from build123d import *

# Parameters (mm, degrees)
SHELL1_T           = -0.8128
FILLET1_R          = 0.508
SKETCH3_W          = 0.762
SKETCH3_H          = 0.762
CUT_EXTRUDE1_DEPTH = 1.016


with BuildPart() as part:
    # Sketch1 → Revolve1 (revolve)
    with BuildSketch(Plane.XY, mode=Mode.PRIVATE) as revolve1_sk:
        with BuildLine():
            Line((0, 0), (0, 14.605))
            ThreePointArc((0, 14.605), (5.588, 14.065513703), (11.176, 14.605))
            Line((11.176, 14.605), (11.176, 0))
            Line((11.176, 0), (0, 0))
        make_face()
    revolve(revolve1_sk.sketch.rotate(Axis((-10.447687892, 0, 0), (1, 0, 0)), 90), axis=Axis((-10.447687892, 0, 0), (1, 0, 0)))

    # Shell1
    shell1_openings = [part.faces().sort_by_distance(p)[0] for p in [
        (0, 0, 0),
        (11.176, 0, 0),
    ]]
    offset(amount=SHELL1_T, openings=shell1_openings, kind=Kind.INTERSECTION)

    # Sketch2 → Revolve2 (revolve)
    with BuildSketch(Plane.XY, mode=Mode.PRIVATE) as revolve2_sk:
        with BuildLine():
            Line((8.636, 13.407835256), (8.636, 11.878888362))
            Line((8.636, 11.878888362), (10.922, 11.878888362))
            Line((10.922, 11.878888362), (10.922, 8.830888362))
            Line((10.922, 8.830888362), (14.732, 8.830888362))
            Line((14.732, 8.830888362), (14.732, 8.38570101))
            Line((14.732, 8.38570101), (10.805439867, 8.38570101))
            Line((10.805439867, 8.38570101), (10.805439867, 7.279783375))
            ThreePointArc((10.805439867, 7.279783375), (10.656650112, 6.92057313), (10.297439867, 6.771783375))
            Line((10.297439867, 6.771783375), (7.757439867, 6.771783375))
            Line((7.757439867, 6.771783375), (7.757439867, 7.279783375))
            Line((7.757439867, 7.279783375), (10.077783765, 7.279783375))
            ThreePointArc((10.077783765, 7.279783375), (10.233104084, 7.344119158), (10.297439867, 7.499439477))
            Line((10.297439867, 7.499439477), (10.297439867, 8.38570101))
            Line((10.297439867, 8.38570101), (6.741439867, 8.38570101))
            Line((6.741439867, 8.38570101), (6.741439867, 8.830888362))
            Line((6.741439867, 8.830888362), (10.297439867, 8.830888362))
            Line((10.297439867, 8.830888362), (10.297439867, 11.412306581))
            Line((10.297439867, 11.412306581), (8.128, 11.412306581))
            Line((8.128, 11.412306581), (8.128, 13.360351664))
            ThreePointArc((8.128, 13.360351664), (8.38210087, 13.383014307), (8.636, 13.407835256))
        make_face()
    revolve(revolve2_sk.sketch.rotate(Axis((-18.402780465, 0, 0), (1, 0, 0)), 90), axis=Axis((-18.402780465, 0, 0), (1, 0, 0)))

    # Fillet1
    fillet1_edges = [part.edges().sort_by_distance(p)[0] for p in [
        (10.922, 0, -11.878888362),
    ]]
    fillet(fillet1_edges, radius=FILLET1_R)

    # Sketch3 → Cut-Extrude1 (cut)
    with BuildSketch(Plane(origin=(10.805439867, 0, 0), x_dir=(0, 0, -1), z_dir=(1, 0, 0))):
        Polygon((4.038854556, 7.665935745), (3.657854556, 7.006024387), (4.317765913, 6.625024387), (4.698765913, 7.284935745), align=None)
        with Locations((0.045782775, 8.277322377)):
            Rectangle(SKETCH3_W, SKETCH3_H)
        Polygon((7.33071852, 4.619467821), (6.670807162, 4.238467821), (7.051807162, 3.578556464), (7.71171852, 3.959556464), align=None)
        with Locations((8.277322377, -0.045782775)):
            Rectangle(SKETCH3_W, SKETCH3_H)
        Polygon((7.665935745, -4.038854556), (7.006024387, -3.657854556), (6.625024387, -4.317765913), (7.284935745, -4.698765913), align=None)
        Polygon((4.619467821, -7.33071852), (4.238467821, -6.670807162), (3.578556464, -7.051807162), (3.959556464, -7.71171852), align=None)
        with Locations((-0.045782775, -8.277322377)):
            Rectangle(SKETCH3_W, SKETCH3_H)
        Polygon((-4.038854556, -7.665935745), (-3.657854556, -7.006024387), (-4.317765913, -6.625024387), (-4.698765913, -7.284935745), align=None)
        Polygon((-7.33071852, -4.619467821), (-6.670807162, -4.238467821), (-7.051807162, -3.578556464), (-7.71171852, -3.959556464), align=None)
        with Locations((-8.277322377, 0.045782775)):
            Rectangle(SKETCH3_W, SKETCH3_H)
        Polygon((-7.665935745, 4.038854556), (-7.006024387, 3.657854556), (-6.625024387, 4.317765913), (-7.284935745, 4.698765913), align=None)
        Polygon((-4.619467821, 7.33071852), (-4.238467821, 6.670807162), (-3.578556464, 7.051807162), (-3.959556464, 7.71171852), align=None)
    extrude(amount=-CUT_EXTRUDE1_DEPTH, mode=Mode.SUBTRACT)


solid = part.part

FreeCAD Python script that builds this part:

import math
import FreeCAD as App
import Part
import Sketcher

V = App.Vector
Q = App.Units.Quantity


def edges_at(feature, points):
    """Names of the edges that pass closest to the given points."""
    edges = feature.Shape.Edges
    near = lambda p: min(range(len(edges)), key=lambda i: edges[i].distToShape(Part.Vertex(*p))[0])
    return sorted({f"Edge{near(p) + 1}" for p in points})


def faces_at(feature, points):
    """Names of the faces that lie closest to the given points."""
    faces = feature.Shape.Faces
    near = lambda p: min(range(len(faces)), key=lambda i: faces[i].distToShape(Part.Vertex(*p))[0])
    return sorted({f"Face{near(p) + 1}" for p in points})

doc = App.newDocument("Part")
body = doc.addObject("PartDesign::Body", "Body")

# Sketch on XY plane
sketch1 = body.newObject("Sketcher::SketchObject", "Sketch")
sketch1.AttachmentSupport = (doc.getObject("XY_Plane"), [""])
sketch1.MapMode = "FlatFace"
sketch1.addGeometry(Part.LineSegment(V(0, 15, 0), V(0, 0, 0)), False)
sketch1.addGeometry(Part.LineSegment(V(0, 0, 0), V(11, 0, 0)), False)
sketch1.addGeometry(Part.LineSegment(V(11, 0, 0), V(11, 15, 0)), False)
sketch1.addGeometry(Part.ArcOfCircle(Part.Circle(V(6, 43, 0), V(0, 0, 1), 29), math.radians(-101), math.radians(-79)), False)
sketch1.addConstraint(Sketcher.Constraint("Coincident", 0, 2, 1, 1))
sketch1.addConstraint(Sketcher.Constraint("Coincident", 1, 2, 2, 1))
sketch1.addConstraint(Sketcher.Constraint("Coincident", 2, 2, 3, 2))
sketch1.addConstraint(Sketcher.Constraint("Coincident", 3, 1, 0, 1))
sketch1.addConstraint(Sketcher.Constraint("Vertical", 0))
sketch1.addConstraint(Sketcher.Constraint("Horizontal", 1))
sketch1.addConstraint(Sketcher.Constraint("Vertical", 2))
sketch1.addConstraint(Sketcher.Constraint("Coincident", 0, 2, -1, 1))
sketch1.addConstraint(Sketcher.Constraint("Horizontal", 2, 2, 3, 1))
sketch1.addConstraint(Sketcher.Constraint("Radius", 3, Q("1.15 in")))
sketch1.addConstraint(Sketcher.Constraint("DistanceX", 1, 1, 1, 2, Q("0.44 in")))
sketch1.addConstraint(Sketcher.Constraint("DistanceY", 0, 2, 0, 1, Q("0.575 in")))
revolution = body.newObject("PartDesign::Revolution", "Revolution")
revolution.Profile = sketch1
revolution.ReferenceAxis = (sketch1, ["H_Axis"])
revolution.Angle = 360
doc.recompute()

thickness = body.newObject("PartDesign::Thickness", "Thickness")
thickness.Base = (revolution, faces_at(revolution, [(0, 0, 0), (11.176, 0, 0)]))
thickness.Value = Q("0.032 in")
thickness.Reversed = True
thickness.Join = "Intersection"

# Sketch on XY plane
sketch2 = body.newObject("Sketcher::SketchObject", "Sketch001")
sketch2.AttachmentSupport = (doc.getObject("XY_Plane"), [""])
sketch2.MapMode = "FlatFace"
sketch2.addGeometry(Part.LineSegment(V(8.64, 11.88, 0), V(8.64, 13.41, 0)), False)
sketch2.addGeometry(Part.ArcOfCircle(Part.Circle(V(5.59, 43.28, 0), V(0, 0, 1), 30.02), math.radians(-85.15), math.radians(-84.17)), False)
sketch2.addGeometry(Part.LineSegment(V(8.13, 13.36, 0), V(8.13, 11.41, 0)), False)
sketch2.addGeometry(Part.LineSegment(V(8.13, 11.41, 0), V(10.3, 11.41, 0)), False)
sketch2.addGeometry(Part.LineSegment(V(10.3, 11.41, 0), V(10.3, 8.83, 0)), False)
sketch2.addGeometry(Part.LineSegment(V(10.3, 8.83, 0), V(6.74, 8.83, 0)), False)
sketch2.addGeometry(Part.LineSegment(V(6.74, 8.83, 0), V(6.74, 8.39, 0)), False)
sketch2.addGeometry(Part.LineSegment(V(6.74, 8.39, 0), V(10.3, 8.39, 0)), False)
sketch2.addGeometry(Part.LineSegment(V(10.3, 8.39, 0), V(10.3, 7.5, 0)), False)
sketch2.addGeometry(Part.ArcOfCircle(Part.Circle(V(10.08, 7.5, 0), V(0, 0, 1), 0.22), math.radians(-90), math.radians(0)), False)
sketch2.addGeometry(Part.LineSegment(V(10.08, 7.28, 0), V(7.76, 7.28, 0)), False)
sketch2.addGeometry(Part.LineSegment(V(7.76, 7.28, 0), V(7.76, 6.77, 0)), False)
sketch2.addGeometry(Part.LineSegment(V(7.76, 6.77, 0), V(10.3, 6.77, 0)), False)
sketch2.addGeometry(Part.ArcOfCircle(Part.Circle(V(10.3, 7.28, 0), V(0, 0, 1), 0.51), math.radians(-90), math.radians(0)), False)
sketch2.addGeometry(Part.LineSegment(V(10.81, 7.28, 0), V(10.81, 8.39, 0)), False)
sketch2.addGeometry(Part.LineSegment(V(10.81, 8.39, 0), V(14.73, 8.39, 0)), False)
sketch2.addGeometry(Part.LineSegment(V(14.73, 8.39, 0), V(14.73, 8.83, 0)), False)
sketch2.addGeometry(Part.LineSegment(V(14.73, 8.83, 0), V(10.92, 8.83, 0)), False)
sketch2.addGeometry(Part.LineSegment(V(10.92, 8.83, 0), V(10.92, 11.88, 0)), False)
sketch2.addGeometry(Part.LineSegment(V(10.92, 11.88, 0), V(8.64, 11.88, 0)), False)
sketch2.addConstraint(Sketcher.Constraint("Coincident", 0, 2, 1, 2))
sketch2.addConstraint(Sketcher.Constraint("Coincident", 1, 1, 2, 1))
sketch2.addConstraint(Sketcher.Constraint("Coincident", 2, 2, 3, 1))
sketch2.addConstraint(Sketcher.Constraint("Coincident", 3, 2, 4, 1))
sketch2.addConstraint(Sketcher.Constraint("Coincident", 4, 2, 5, 1))
sketch2.addConstraint(Sketcher.Constraint("Coincident", 5, 2, 6, 1))
sketch2.addConstraint(Sketcher.Constraint("Coincident", 6, 2, 7, 1))
sketch2.addConstraint(Sketcher.Constraint("Coincident", 7, 2, 8, 1))
sketch2.addConstraint(Sketcher.Constraint("Tangent", 8, 2, 9, 2))
sketch2.addConstraint(Sketcher.Constraint("Tangent", 9, 1, 10, 1))
sketch2.addConstraint(Sketcher.Constraint("Coincident", 10, 2, 11, 1))
sketch2.addConstraint(Sketcher.Constraint("Coincident", 11, 2, 12, 1))
sketch2.addConstraint(Sketcher.Constraint("Tangent", 12, 2, 13, 1))
sketch2.addConstraint(Sketcher.Constraint("Tangent", 13, 2, 14, 1))
sketch2.addConstraint(Sketcher.Constraint("Coincident", 14, 2, 15, 1))
sketch2.addConstraint(Sketcher.Constraint("Coincident", 15, 2, 16, 1))
sketch2.addConstraint(Sketcher.Constraint("Coincident", 16, 2, 17, 1))
sketch2.addConstraint(Sketcher.Constraint("Coincident", 17, 2, 18, 1))
sketch2.addConstraint(Sketcher.Constraint("Coincident", 18, 2, 19, 1))
sketch2.addConstraint(Sketcher.Constraint("Coincident", 19, 2, 0, 1))
sketch2.addConstraint(Sketcher.Constraint("Vertical", 0))
sketch2.addConstraint(Sketcher.Constraint("Vertical", 2))
sketch2.addConstraint(Sketcher.Constraint("Horizontal", 3))
sketch2.addConstraint(Sketcher.Constraint("Vertical", 4))
sketch2.addConstraint(Sketcher.Constraint("Horizontal", 5))
sketch2.addConstraint(Sketcher.Constraint("Vertical", 6))
sketch2.addConstraint(Sketcher.Constraint("Horizontal", 7))
sketch2.addConstraint(Sketcher.Constraint("Vertical", 8))
sketch2.addConstraint(Sketcher.Constraint("Horizontal", 10))
sketch2.addConstraint(Sketcher.Constraint("Vertical", 11))
sketch2.addConstraint(Sketcher.Constraint("Horizontal", 12))
sketch2.addConstraint(Sketcher.Constraint("Vertical", 14))
sketch2.addConstraint(Sketcher.Constraint("Horizontal", 15))
sketch2.addConstraint(Sketcher.Constraint("Vertical", 16))
sketch2.addConstraint(Sketcher.Constraint("Horizontal", 17))
sketch2.addConstraint(Sketcher.Constraint("Vertical", 18))
sketch2.addConstraint(Sketcher.Constraint("Horizontal", 19))
sketch2.addConstraint(Sketcher.Constraint("Horizontal", 13, 3, 9, 1))
sketch2.addConstraint(Sketcher.Constraint("Horizontal", 7, 2, 14, 2))
sketch2.addConstraint(Sketcher.Constraint("Horizontal", 5, 2, 16, 2))
sketch2.addConstraint(Sketcher.Constraint("Vertical", 13, 3, 3, 2))
sketch2.addConstraint(Sketcher.Constraint("Vertical", 4, 2, 7, 2))
sketch2.addConstraint(Sketcher.Constraint("Radius", 13, Q("0.02 in")))
sketch2.addConstraint(Sketcher.Constraint("DistanceX", 12, 1, 12, 2, Q("0.1 in")))
sketch2.addConstraint(Sketcher.Constraint("Radius", 1, Q("1.1820001 in")))
sketch2.addConstraint(Sketcher.Constraint("DistanceX", 5, 2, 5, 1, Q("0.14 in")))
sketch2.addConstraint(Sketcher.Constraint("DistanceX", 17, 2, 17, 1, Q("0.15 in")))
sketch2.addConstraint(Sketcher.Constraint("DistanceX", 19, 2, 19, 1, Q("0.09 in")))
sketch2.addConstraint(Sketcher.Constraint("DistanceY", 18, 1, 18, 2, Q("0.12 in")))
sketch2.addConstraint(Sketcher.Constraint("DistanceX", 1, 3, 1, 1, Q("0.1 in")))
sketch2.addConstraint(Sketcher.Constraint("DistanceX", -1, 1, 1, 3, Q("0.22 in")))
sketch2.addConstraint(Sketcher.Constraint("DistanceX", -1, 1, 0, 2, Q("0.34 in")))
sketch2.addConstraint(Sketcher.Constraint("Radius", 9, Q("0.219656 mm")))
sketch2.addConstraint(Sketcher.Constraint("DistanceX", 3, 1, 3, 2, Q("2.16944 mm")))
sketch2.addConstraint(Sketcher.Constraint("DistanceY", 4, 2, 4, 1, Q("2.581418 mm")))
sketch2.addConstraint(Sketcher.Constraint("DistanceY", 8, 2, 8, 1, Q("0.886262 mm")))
sketch2.addConstraint(Sketcher.Constraint("DistanceY", -1, 1, 6, 2, Q("8.385701 mm")))
sketch2.addConstraint(Sketcher.Constraint("DistanceY", 0, 1, 0, 2, Q("1.528947 mm")))
sketch2.addConstraint(Sketcher.Constraint("DistanceY", 6, 2, 6, 1, Q("0.445187 mm")))
revolution2 = body.newObject("PartDesign::Revolution", "Revolution001")
revolution2.Profile = sketch2
revolution2.ReferenceAxis = (sketch2, ["H_Axis"])
revolution2.Angle = 360
doc.recompute()

fillet = body.newObject("PartDesign::Fillet", "Fillet")
fillet.Base = (revolution2, edges_at(revolution2, [(10.922, 0, -11.879)]))
fillet.Radius = Q("0.02 in")

# Sketch on YZ plane
sketch3 = body.newObject("Sketcher::SketchObject", "Sketch002")
sketch3.AttachmentSupport = (doc.getObject("YZ_Plane"), [""])
sketch3.MapMode = "FlatFace"
sketch3.AttachmentOffset = App.Placement(V(0, 0, 10.80544), App.Rotation())
sketch3.addGeometry(Part.LineSegment(V(7.7, -4, 0), V(7, -3.7, 0)), False)
sketch3.addGeometry(Part.LineSegment(V(7, -3.7, 0), V(6.6, -4.3, 0)), False)
sketch3.addGeometry(Part.LineSegment(V(6.6, -4.3, 0), V(7.3, -4.7, 0)), False)
sketch3.addGeometry(Part.LineSegment(V(7.3, -4.7, 0), V(7.7, -4, 0)), False)
sketch3.addGeometry(Part.LineSegment(V(8.7, 0.3, 0), V(7.9, 0.3, 0)), False)
sketch3.addGeometry(Part.LineSegment(V(7.9, 0.3, 0), V(7.9, -0.4, 0)), False)
sketch3.addGeometry(Part.LineSegment(V(7.9, -0.4, 0), V(8.7, -0.4, 0)), False)
sketch3.addGeometry(Part.LineSegment(V(8.7, -0.4, 0), V(8.7, 0.3, 0)), False)
sketch3.addGeometry(Part.LineSegment(V(4.6, -7.3, 0), V(4.2, -6.7, 0)), False)
sketch3.addGeometry(Part.LineSegment(V(4.2, -6.7, 0), V(3.6, -7.1, 0)), False)
sketch3.addGeometry(Part.LineSegment(V(3.6, -7.1, 0), V(4, -7.7, 0)), False)
sketch3.addGeometry(Part.LineSegment(V(4, -7.7, 0), V(4.6, -7.3, 0)), False)
sketch3.addGeometry(Part.LineSegment(V(0.3, -7.9, 0), V(-0.4, -7.9, 0)), False)
sketch3.addGeometry(Part.LineSegment(V(-0.4, -7.9, 0), V(-0.4, -8.7, 0)), False)
sketch3.addGeometry(Part.LineSegment(V(-0.4, -8.7, 0), V(0.3, -8.7, 0)), False)
sketch3.addGeometry(Part.LineSegment(V(0.3, -8.7, 0), V(0.3, -7.9, 0)), False)
sketch3.addGeometry(Part.LineSegment(V(-4, -7.7, 0), V(-3.7, -7, 0)), False)
sketch3.addGeometry(Part.LineSegment(V(-3.7, -7, 0), V(-4.3, -6.6, 0)), False)
sketch3.addGeometry(Part.LineSegment(V(-4.3, -6.6, 0), V(-4.7, -7.3, 0)), False)
sketch3.addGeometry(Part.LineSegment(V(-4.7, -7.3, 0), V(-4, -7.7, 0)), False)
sketch3.addGeometry(Part.LineSegment(V(-7.3, -4.6, 0), V(-6.7, -4.2, 0)), False)
sketch3.addGeometry(Part.LineSegment(V(-6.7, -4.2, 0), V(-7.1, -3.6, 0)), False)
sketch3.addGeometry(Part.LineSegment(V(-7.1, -3.6, 0), V(-7.7, -4, 0)), False)
sketch3.addGeometry(Part.LineSegment(V(-7.7, -4, 0), V(-7.3, -4.6, 0)), False)
sketch3.addGeometry(Part.LineSegment(V(-7.9, 0.4, 0), V(-8.7, 0.4, 0)), False)
sketch3.addGeometry(Part.LineSegment(V(-8.7, 0.4, 0), V(-8.7, -0.3, 0)), False)
sketch3.addGeometry(Part.LineSegment(V(-8.7, -0.3, 0), V(-7.9, -0.3, 0)), False)
sketch3.addGeometry(Part.LineSegment(V(-7.9, -0.3, 0), V(-7.9, 0.4, 0)), False)
sketch3.addGeometry(Part.LineSegment(V(-7.7, 4, 0), V(-7, 3.7, 0)), False)
sketch3.addGeometry(Part.LineSegment(V(-7, 3.7, 0), V(-6.6, 4.3, 0)), False)
sketch3.addGeometry(Part.LineSegment(V(-6.6, 4.3, 0), V(-7.3, 4.7, 0)), False)
sketch3.addGeometry(Part.LineSegment(V(-7.3, 4.7, 0), V(-7.7, 4, 0)), False)
sketch3.addGeometry(Part.LineSegment(V(-4.6, 7.3, 0), V(-4.2, 6.7, 0)), False)
sketch3.addGeometry(Part.LineSegment(V(-4.2, 6.7, 0), V(-3.6, 7.1, 0)), False)
sketch3.addGeometry(Part.LineSegment(V(-3.6, 7.1, 0), V(-4, 7.7, 0)), False)
sketch3.addGeometry(Part.LineSegment(V(-4, 7.7, 0), V(-4.6, 7.3, 0)), False)
sketch3.addGeometry(Part.LineSegment(V(0.4, 8.7, 0), V(-0.3, 8.7, 0)), False)
sketch3.addGeometry(Part.LineSegment(V(-0.3, 8.7, 0), V(-0.3, 7.9, 0)), False)
sketch3.addGeometry(Part.LineSegment(V(-0.3, 7.9, 0), V(0.4, 7.9, 0)), False)
sketch3.addGeometry(Part.LineSegment(V(0.4, 7.9, 0), V(0.4, 8.7, 0)), False)
sketch3.addGeometry(Part.LineSegment(V(4, 7.7, 0), V(3.7, 7, 0)), False)
sketch3.addGeometry(Part.LineSegment(V(3.7, 7, 0), V(4.3, 6.6, 0)), False)
sketch3.addGeometry(Part.LineSegment(V(4.3, 6.6, 0), V(4.7, 7.3, 0)), False)
sketch3.addGeometry(Part.LineSegment(V(4.7, 7.3, 0), V(4, 7.7, 0)), False)
sketch3.addGeometry(Part.LineSegment(V(7.3, 4.6, 0), V(6.7, 4.2, 0)), False)
sketch3.addGeometry(Part.LineSegment(V(6.7, 4.2, 0), V(7.1, 3.6, 0)), False)
sketch3.addGeometry(Part.LineSegment(V(7.1, 3.6, 0), V(7.7, 4, 0)), False)
sketch3.addGeometry(Part.LineSegment(V(7.7, 4, 0), V(7.3, 4.6, 0)), False)
sketch3.addConstraint(Sketcher.Constraint("Coincident", 0, 2, 1, 1))
sketch3.addConstraint(Sketcher.Constraint("Coincident", 1, 2, 2, 1))
sketch3.addConstraint(Sketcher.Constraint("Coincident", 2, 2, 3, 1))
sketch3.addConstraint(Sketcher.Constraint("Coincident", 3, 2, 0, 1))
sketch3.addConstraint(Sketcher.Constraint("Coincident", 4, 2, 5, 1))
sketch3.addConstraint(Sketcher.Constraint("Coincident", 5, 2, 6, 1))
sketch3.addConstraint(Sketcher.Constraint("Coincident", 6, 2, 7, 1))
sketch3.addConstraint(Sketcher.Constraint("Coincident", 7, 2, 4, 1))
sketch3.addConstraint(Sketcher.Constraint("Coincident", 8, 2, 9, 1))
sketch3.addConstraint(Sketcher.Constraint("Coincident", 9, 2, 10, 1))
sketch3.addConstraint(Sketcher.Constraint("Coincident", 10, 2, 11, 1))
sketch3.addConstraint(Sketcher.Constraint("Coincident", 11, 2, 8, 1))
sketch3.addConstraint(Sketcher.Constraint("Coincident", 12, 2, 13, 1))
sketch3.addConstraint(Sketcher.Constraint("Coincident", 13, 2, 14, 1))
sketch3.addConstraint(Sketcher.Constraint("Coincident", 14, 2, 15, 1))
sketch3.addConstraint(Sketcher.Constraint("Coincident", 15, 2, 12, 1))
sketch3.addConstraint(Sketcher.Constraint("Coincident", 16, 2, 17, 1))
sketch3.addConstraint(Sketcher.Constraint("Coincident", 17, 2, 18, 1))
sketch3.addConstraint(Sketcher.Constraint("Coincident", 18, 2, 19, 1))
sketch3.addConstraint(Sketcher.Constraint("Coincident", 19, 2, 16, 1))
sketch3.addConstraint(Sketcher.Constraint("Coincident", 20, 2, 21, 1))
sketch3.addConstraint(Sketcher.Constraint("Coincident", 21, 2, 22, 1))
sketch3.addConstraint(Sketcher.Constraint("Coincident", 22, 2, 23, 1))
sketch3.addConstraint(Sketcher.Constraint("Coincident", 23, 2, 20, 1))
sketch3.addConstraint(Sketcher.Constraint("Coincident", 24, 2, 25, 1))
sketch3.addConstraint(Sketcher.Constraint("Coincident", 25, 2, 26, 1))
sketch3.addConstraint(Sketcher.Constraint("Coincident", 26, 2, 27, 1))
sketch3.addConstraint(Sketcher.Constraint("Coincident", 27, 2, 24, 1))
sketch3.addConstraint(Sketcher.Constraint("Coincident", 28, 2, 29, 1))
sketch3.addConstraint(Sketcher.Constraint("Coincident", 29, 2, 30, 1))
sketch3.addConstraint(Sketcher.Constraint("Coincident", 30, 2, 31, 1))
sketch3.addConstraint(Sketcher.Constraint("Coincident", 31, 2, 28, 1))
sketch3.addConstraint(Sketcher.Constraint("Coincident", 32, 2, 33, 1))
sketch3.addConstraint(Sketcher.Constraint("Coincident", 33, 2, 34, 1))
sketch3.addConstraint(Sketcher.Constraint("Coincident", 34, 2, 35, 1))
sketch3.addConstraint(Sketcher.Constraint("Coincident", 35, 2, 32, 1))
sketch3.addConstraint(Sketcher.Constraint("Coincident", 36, 2, 37, 1))
sketch3.addConstraint(Sketcher.Constraint("Coincident", 37, 2, 38, 1))
sketch3.addConstraint(Sketcher.Constraint("Coincident", 38, 2, 39, 1))
sketch3.addConstraint(Sketcher.Constraint("Coincident", 39, 2, 36, 1))
sketch3.addConstraint(Sketcher.Constraint("Coincident", 40, 2, 41, 1))
sketch3.addConstraint(Sketcher.Constraint("Coincident", 41, 2, 42, 1))
sketch3.addConstraint(Sketcher.Constraint("Coincident", 42, 2, 43, 1))
sketch3.addConstraint(Sketcher.Constraint("Coincident", 43, 2, 40, 1))
sketch3.addConstraint(Sketcher.Constraint("Coincident", 44, 2, 45, 1))
sketch3.addConstraint(Sketcher.Constraint("Coincident", 45, 2, 46, 1))
sketch3.addConstraint(Sketcher.Constraint("Coincident", 46, 2, 47, 1))
sketch3.addConstraint(Sketcher.Constraint("Coincident", 47, 2, 44, 1))
sketch3.addConstraint(Sketcher.Constraint("Horizontal", 4))
sketch3.addConstraint(Sketcher.Constraint("Vertical", 5))
sketch3.addConstraint(Sketcher.Constraint("Horizontal", 6))
sketch3.addConstraint(Sketcher.Constraint("Vertical", 7))
sketch3.addConstraint(Sketcher.Constraint("Horizontal", 12))
sketch3.addConstraint(Sketcher.Constraint("Vertical", 13))
sketch3.addConstraint(Sketcher.Constraint("Horizontal", 14))
sketch3.addConstraint(Sketcher.Constraint("Vertical", 15))
sketch3.addConstraint(Sketcher.Constraint("Horizontal", 24))
sketch3.addConstraint(Sketcher.Constraint("Vertical", 25))
sketch3.addConstraint(Sketcher.Constraint("Horizontal", 26))
sketch3.addConstraint(Sketcher.Constraint("Vertical", 27))
sketch3.addConstraint(Sketcher.Constraint("Horizontal", 36))
sketch3.addConstraint(Sketcher.Constraint("Vertical", 37))
sketch3.addConstraint(Sketcher.Constraint("Horizontal", 38))
sketch3.addConstraint(Sketcher.Constraint("Vertical", 39))
sketch3.addConstraint(Sketcher.Constraint("Symmetric", 6, 2, 24, 2, -1, 1))
sketch3.addConstraint(Sketcher.Constraint("Symmetric", 4, 2, 26, 2, -1, 1))
sketch3.addConstraint(Sketcher.Constraint("Symmetric", 0, 2, 28, 2, -1, 1))
sketch3.addConstraint(Sketcher.Constraint("Symmetric", 1, 2, 29, 2, -1, 1))
sketch3.addConstraint(Sketcher.Constraint("Symmetric", 2, 2, 30, 2, -1, 1))
sketch3.addConstraint(Sketcher.Constraint("Symmetric", 3, 2, 31, 2, -1, 1))
sketch3.addConstraint(Sketcher.Constraint("Symmetric", 8, 2, 32, 2, -1, 1))
sketch3.addConstraint(Sketcher.Constraint("Symmetric", 9, 2, 33, 2, -1, 1))
sketch3.addConstraint(Sketcher.Constraint("Symmetric", 10, 2, 34, 2, -1, 1))
sketch3.addConstraint(Sketcher.Constraint("Symmetric", 11, 2, 35, 2, -1, 1))
sketch3.addConstraint(Sketcher.Constraint("Symmetric", 14, 2, 36, 2, -1, 1))
sketch3.addConstraint(Sketcher.Constraint("Symmetric", 12, 2, 38, 2, -1, 1))
sketch3.addConstraint(Sketcher.Constraint("Symmetric", 16, 2, 40, 2, -1, 1))
sketch3.addConstraint(Sketcher.Constraint("Symmetric", 17, 2, 41, 2, -1, 1))
sketch3.addConstraint(Sketcher.Constraint("Symmetric", 18, 2, 42, 2, -1, 1))
sketch3.addConstraint(Sketcher.Constraint("Symmetric", 19, 2, 43, 2, -1, 1))
sketch3.addConstraint(Sketcher.Constraint("Symmetric", 20, 2, 44, 2, -1, 1))
sketch3.addConstraint(Sketcher.Constraint("Symmetric", 21, 2, 45, 2, -1, 1))
sketch3.addConstraint(Sketcher.Constraint("Symmetric", 22, 2, 46, 2, -1, 1))
sketch3.addConstraint(Sketcher.Constraint("Symmetric", 23, 2, 47, 2, -1, 1))
sketch3.addConstraint(Sketcher.Constraint("Perpendicular", 0, 1))
sketch3.addConstraint(Sketcher.Constraint("Perpendicular", 1, 2))
sketch3.addConstraint(Sketcher.Constraint("Perpendicular", 2, 3))
sketch3.addConstraint(Sketcher.Constraint("Perpendicular", 8, 9))
sketch3.addConstraint(Sketcher.Constraint("Perpendicular", 9, 10))
sketch3.addConstraint(Sketcher.Constraint("Perpendicular", 10, 11))
sketch3.addConstraint(Sketcher.Constraint("Parallel", 3, 16))
sketch3.addConstraint(Sketcher.Constraint("Perpendicular", 16, 17))
sketch3.addConstraint(Sketcher.Constraint("Perpendicular", 17, 18))
sketch3.addConstraint(Sketcher.Constraint("Perpendicular", 18, 19))
sketch3.addConstraint(Sketcher.Constraint("Parallel", 11, 20))
sketch3.addConstraint(Sketcher.Constraint("Perpendicular", 20, 21))
sketch3.addConstraint(Sketcher.Constraint("Perpendicular", 21, 22))
sketch3.addConstraint(Sketcher.Constraint("Perpendicular", 22, 23))
sketch3.addConstraint(Sketcher.Constraint("Equal", 6, 12))
sketch3.addConstraint(Sketcher.Constraint("Equal", 38, 5))
sketch3.addConstraint(Sketcher.Constraint("Equal", 7, 13))
sketch3.addConstraint(Sketcher.Constraint("Equal", 0, 1))
sketch3.addConstraint(Sketcher.Constraint("Equal", 3, 8))
sketch3.addConstraint(Sketcher.Constraint("Equal", 8, 9))
sketch3.addConstraint(Sketcher.Constraint("Equal", 11, 16))
sketch3.addConstraint(Sketcher.Constraint("Equal", 16, 17))
sketch3.addConstraint(Sketcher.Constraint("Equal", 19, 20))
sketch3.addConstraint(Sketcher.Constraint("Equal", 20, 21))
sketch3.addConstraint(Sketcher.Constraint("Angle", 0, Q("150 deg")))
sketch3.addConstraint(Sketcher.Constraint("Angle", 8, Q("120 deg")))
sketch3.addConstraint(Sketcher.Constraint("DistanceX", 4, 2, 4, 1, Q("0.03 in")))
sketch3.addConstraint(Sketcher.Constraint("Distance", 0, Q("0.03 in")))
sketch3.addConstraint(Sketcher.Constraint("DistanceY", 10, 2, -1, 1, Q("7.711719 mm")))
sketch3.addConstraint(Sketcher.Constraint("DistanceX", 22, 2, -1, 1, Q("7.711719 mm")))
sketch3.addConstraint(Sketcher.Constraint("DistanceY", 0, 2, 4, 2, Q("3.993072 mm")))
sketch3.addConstraint(Sketcher.Constraint("DistanceY", 8, 2, 1, 2, Q("2.353041 mm")))
sketch3.addConstraint(Sketcher.Constraint("DistanceX", 9, 2, 2, 2, Q("3.706379 mm")))
sketch3.addConstraint(Sketcher.Constraint("DistanceX", 12, 2, 9, 2, Q("4.005339 mm")))
sketch3.addConstraint(Sketcher.Constraint("DistanceX", 16, 2, 12, 2, Q("3.231072 mm")))
sketch3.addConstraint(Sketcher.Constraint("DistanceX", 20, 2, 17, 2, Q("2.353041 mm")))
sketch3.addConstraint(Sketcher.Constraint("DistanceY", 18, 2, 21, 2, Q("3.706379 mm")))
sketch3.addConstraint(Sketcher.Constraint("DistanceY", 21, 2, 24, 2, Q("4.005339 mm")))
sketch3.addConstraint(Sketcher.Constraint("DistanceX", -1, 1, 4, 2, Q("7.896322 mm")))
sketch3.addConstraint(Sketcher.Constraint("DistanceY", 12, 2, -1, 1, Q("7.896322 mm")))
pocket1 = body.newObject("PartDesign::Pocket", "Pocket")
pocket1.Profile = sketch3
pocket1.Length = Q("0.04 in")

doc.recompute()
